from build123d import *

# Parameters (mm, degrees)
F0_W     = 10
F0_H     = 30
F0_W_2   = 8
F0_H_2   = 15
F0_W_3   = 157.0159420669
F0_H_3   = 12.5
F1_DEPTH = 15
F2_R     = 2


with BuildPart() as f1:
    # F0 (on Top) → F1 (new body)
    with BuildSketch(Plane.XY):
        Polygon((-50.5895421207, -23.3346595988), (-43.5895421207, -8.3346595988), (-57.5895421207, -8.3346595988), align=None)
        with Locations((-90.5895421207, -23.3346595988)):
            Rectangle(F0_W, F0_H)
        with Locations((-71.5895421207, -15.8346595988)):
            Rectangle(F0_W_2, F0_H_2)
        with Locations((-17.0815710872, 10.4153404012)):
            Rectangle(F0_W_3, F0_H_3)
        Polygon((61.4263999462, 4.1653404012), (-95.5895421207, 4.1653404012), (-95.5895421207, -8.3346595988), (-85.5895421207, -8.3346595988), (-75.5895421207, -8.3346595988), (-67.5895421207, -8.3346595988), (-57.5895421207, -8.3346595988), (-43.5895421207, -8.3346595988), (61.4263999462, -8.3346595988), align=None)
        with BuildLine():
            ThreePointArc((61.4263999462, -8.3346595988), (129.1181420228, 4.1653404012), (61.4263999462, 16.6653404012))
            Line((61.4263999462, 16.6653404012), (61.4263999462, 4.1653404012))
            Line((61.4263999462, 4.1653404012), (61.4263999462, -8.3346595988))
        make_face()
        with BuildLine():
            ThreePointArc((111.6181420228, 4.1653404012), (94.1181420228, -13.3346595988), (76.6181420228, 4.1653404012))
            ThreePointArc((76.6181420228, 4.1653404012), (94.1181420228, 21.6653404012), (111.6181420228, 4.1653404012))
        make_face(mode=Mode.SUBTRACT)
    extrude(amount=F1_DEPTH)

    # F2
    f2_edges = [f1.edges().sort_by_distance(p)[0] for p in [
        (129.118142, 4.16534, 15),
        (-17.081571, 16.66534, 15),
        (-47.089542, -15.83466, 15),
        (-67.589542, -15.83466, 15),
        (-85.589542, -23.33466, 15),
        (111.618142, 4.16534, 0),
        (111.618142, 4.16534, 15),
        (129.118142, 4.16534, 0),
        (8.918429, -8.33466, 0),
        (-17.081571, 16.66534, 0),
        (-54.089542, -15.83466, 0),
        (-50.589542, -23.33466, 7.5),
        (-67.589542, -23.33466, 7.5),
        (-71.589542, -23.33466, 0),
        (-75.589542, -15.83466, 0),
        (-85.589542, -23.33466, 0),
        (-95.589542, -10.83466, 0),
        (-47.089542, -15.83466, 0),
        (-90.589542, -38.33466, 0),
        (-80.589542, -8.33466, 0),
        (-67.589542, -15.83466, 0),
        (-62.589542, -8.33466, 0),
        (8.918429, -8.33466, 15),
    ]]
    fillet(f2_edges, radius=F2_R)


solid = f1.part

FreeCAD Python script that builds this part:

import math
import FreeCAD as App
import Part
import Sketcher

V = App.Vector


def edges_at(feature, points):
    """Names of the edges that pass closest to the given points."""
    edges = feature.Shape.Edges
    near = lambda p: min(range(len(edges)), key=lambda i: edges[i].distToShape(Part.Vertex(*p))[0])
    return sorted({f"Edge{near(p) + 1}" for p in points})

doc = App.newDocument("Part")
body = doc.addObject("PartDesign::Body", "Body")

# Sketch on XY plane
sketch1 = body.newObject("Sketcher::SketchObject", "Sketch")
sketch1.AttachmentSupport = (doc.getObject("XY_Plane"), [""])
sketch1.MapMode = "FlatFace"
sketch1.addGeometry([
    Part.LineSegment(V(-51, -23, 0), V(-44, -8, 0)),  # 0
    Part.LineSegment(V(-44, -8, 0), V(61, -8, 0)),  # 1
    Part.ArcOfCircle(Part.Circle(V(94, 4, 0), V(0, 0, 1), 35), math.radians(-159), math.radians(159)),  # 2
    Part.LineSegment(V(61, 17, 0), V(-96, 17, 0)),  # 3
    Part.LineSegment(V(-96, 17, 0), V(-96, -38, 0)),  # 4
    Part.LineSegment(V(-96, -38, 0), V(-86, -38, 0)),  # 5
    Part.LineSegment(V(-86, -38, 0), V(-86, -8, 0)),  # 6
    Part.LineSegment(V(-86, -8, 0), V(-76, -8, 0)),  # 7
    Part.LineSegment(V(-76, -8, 0), V(-76, -23, 0)),  # 8
    Part.LineSegment(V(-76, -23, 0), V(-68, -23, 0)),  # 9
    Part.LineSegment(V(-68, -23, 0), V(-68, -8, 0)),  # 10
    Part.LineSegment(V(-68, -8, 0), V(-58, -8, 0)),  # 11
    Part.LineSegment(V(-58, -8, 0), V(-51, -23, 0)),  # 12
    Part.Circle(V(94, 4, 0), V(0, 0, 1), 18),  # 13
], False)
sketch1.addConstraint([
    Sketcher.Constraint("Coincident", 0, 2, 1, 1),
    Sketcher.Constraint("Coincident", 1, 2, 2, 1),
    Sketcher.Constraint("Coincident", 2, 2, 3, 1),
    Sketcher.Constraint("Coincident", 3, 2, 4, 1),
    Sketcher.Constraint("Coincident", 4, 2, 5, 1),
    Sketcher.Constraint("Coincident", 5, 2, 6, 1),
    Sketcher.Constraint("Coincident", 6, 2, 7, 1),
    Sketcher.Constraint("Coincident", 7, 2, 8, 1),
    Sketcher.Constraint("Coincident", 8, 2, 9, 1),
    Sketcher.Constraint("Coincident", 9, 2, 10, 1),
    Sketcher.Constraint("Coincident", 10, 2, 11, 1),
    Sketcher.Constraint("Coincident", 11, 2, 12, 1),
    Sketcher.Constraint("Coincident", 12, 2, 0, 1),
    Sketcher.Constraint("Horizontal", 1),
    Sketcher.Constraint("Horizontal", 3),
    Sketcher.Constraint("Vertical", 4),
    Sketcher.Constraint("Horizontal", 5),
    Sketcher.Constraint("Vertical", 6),
    Sketcher.Constraint("Horizontal", 7),
    Sketcher.Constraint("Vertical", 8),
    Sketcher.Constraint("Horizontal", 9),
    Sketcher.Constraint("Vertical", 10),
    Sketcher.Constraint("Horizontal", 11),
    Sketcher.Constraint("Coincident", 13, 3, 2, 3),
    Sketcher.Constraint("Horizontal", 1, 2, 6, 2),
    Sketcher.Constraint("Horizontal", 7, 2, 10, 2),
    Sketcher.Constraint("Horizontal", 9, 2, 12, 2),
    Sketcher.Constraint("Vertical", 1, 2, 2, 2),
    Sketcher.Constraint("Equal", 5, 7),
    Sketcher.Constraint("Equal", 7, 11),
    Sketcher.Constraint("Equal", 0, 12),
    Sketcher.Constraint("Diameter", 13, 35.0),
    Sketcher.Constraint("Radius", 2, 35.0),
    Sketcher.Constraint("DistanceX", 5, 1, 5, 2, 10.0),
    Sketcher.Constraint("DistanceX", 9, 1, 9, 2, 8.0),
    Sketcher.Constraint("DistanceY", 4, 2, 4, 1, 55.0),
    Sketcher.Constraint("DistanceY", 6, 1, 6, 2, 30.0),
    Sketcher.Constraint("DistanceY", 8, 2, 8, 1, 15.0),
    Sketcher.Constraint("DistanceX", 3, 2, 0, 2, 52.0),
    Sketcher.Constraint("DistanceX", -1, 1, 1, 2, 61.4264),
    Sketcher.Constraint("DistanceX", 1, 1, 1, 2, 105.015942),
    Sketcher.Constraint("DistanceY", -1, 1, 2, 3, 4.16534),
])
pad1 = body.newObject("PartDesign::Pad", "Pad")
pad1.Profile = sketch1
pad1.Length = 15
doc.recompute()

fillet = body.newObject("PartDesign::Fillet", "Fillet")
fillet.Base = (pad1, edges_at(pad1, [
    (129.118, 4.165, 15),
    (-17.082, 16.665, 15),
    (-47.09, -15.835, 15),
    (-67.59, -15.835, 15),
    (-85.59, -23.335, 15),
    (111.618, 4.165, 0),
    (111.618, 4.165, 15),
    (129.118, 4.165, 0),
    (8.918, -8.335, 0),
    (-17.082, 16.665, 0),
    (-54.09, -15.835, 0),
    (-50.59, -23.335, 7.5),
    (-67.59, -23.335, 7.5),
    (-71.59, -23.335, 0),
    (-75.59, -15.835, 0),
    (-85.59, -23.335, 0),
    (-95.59, -10.835, 0),
    (-47.09, -15.835, 0),
    (-90.59, -38.335, 0),
    (-80.59, -8.335, 0),
    (-67.59, -15.835, 0),
    (-62.59, -8.335, 0),
    (8.918, -8.335, 15),
]))
fillet.Radius = 2

doc.recompute()
